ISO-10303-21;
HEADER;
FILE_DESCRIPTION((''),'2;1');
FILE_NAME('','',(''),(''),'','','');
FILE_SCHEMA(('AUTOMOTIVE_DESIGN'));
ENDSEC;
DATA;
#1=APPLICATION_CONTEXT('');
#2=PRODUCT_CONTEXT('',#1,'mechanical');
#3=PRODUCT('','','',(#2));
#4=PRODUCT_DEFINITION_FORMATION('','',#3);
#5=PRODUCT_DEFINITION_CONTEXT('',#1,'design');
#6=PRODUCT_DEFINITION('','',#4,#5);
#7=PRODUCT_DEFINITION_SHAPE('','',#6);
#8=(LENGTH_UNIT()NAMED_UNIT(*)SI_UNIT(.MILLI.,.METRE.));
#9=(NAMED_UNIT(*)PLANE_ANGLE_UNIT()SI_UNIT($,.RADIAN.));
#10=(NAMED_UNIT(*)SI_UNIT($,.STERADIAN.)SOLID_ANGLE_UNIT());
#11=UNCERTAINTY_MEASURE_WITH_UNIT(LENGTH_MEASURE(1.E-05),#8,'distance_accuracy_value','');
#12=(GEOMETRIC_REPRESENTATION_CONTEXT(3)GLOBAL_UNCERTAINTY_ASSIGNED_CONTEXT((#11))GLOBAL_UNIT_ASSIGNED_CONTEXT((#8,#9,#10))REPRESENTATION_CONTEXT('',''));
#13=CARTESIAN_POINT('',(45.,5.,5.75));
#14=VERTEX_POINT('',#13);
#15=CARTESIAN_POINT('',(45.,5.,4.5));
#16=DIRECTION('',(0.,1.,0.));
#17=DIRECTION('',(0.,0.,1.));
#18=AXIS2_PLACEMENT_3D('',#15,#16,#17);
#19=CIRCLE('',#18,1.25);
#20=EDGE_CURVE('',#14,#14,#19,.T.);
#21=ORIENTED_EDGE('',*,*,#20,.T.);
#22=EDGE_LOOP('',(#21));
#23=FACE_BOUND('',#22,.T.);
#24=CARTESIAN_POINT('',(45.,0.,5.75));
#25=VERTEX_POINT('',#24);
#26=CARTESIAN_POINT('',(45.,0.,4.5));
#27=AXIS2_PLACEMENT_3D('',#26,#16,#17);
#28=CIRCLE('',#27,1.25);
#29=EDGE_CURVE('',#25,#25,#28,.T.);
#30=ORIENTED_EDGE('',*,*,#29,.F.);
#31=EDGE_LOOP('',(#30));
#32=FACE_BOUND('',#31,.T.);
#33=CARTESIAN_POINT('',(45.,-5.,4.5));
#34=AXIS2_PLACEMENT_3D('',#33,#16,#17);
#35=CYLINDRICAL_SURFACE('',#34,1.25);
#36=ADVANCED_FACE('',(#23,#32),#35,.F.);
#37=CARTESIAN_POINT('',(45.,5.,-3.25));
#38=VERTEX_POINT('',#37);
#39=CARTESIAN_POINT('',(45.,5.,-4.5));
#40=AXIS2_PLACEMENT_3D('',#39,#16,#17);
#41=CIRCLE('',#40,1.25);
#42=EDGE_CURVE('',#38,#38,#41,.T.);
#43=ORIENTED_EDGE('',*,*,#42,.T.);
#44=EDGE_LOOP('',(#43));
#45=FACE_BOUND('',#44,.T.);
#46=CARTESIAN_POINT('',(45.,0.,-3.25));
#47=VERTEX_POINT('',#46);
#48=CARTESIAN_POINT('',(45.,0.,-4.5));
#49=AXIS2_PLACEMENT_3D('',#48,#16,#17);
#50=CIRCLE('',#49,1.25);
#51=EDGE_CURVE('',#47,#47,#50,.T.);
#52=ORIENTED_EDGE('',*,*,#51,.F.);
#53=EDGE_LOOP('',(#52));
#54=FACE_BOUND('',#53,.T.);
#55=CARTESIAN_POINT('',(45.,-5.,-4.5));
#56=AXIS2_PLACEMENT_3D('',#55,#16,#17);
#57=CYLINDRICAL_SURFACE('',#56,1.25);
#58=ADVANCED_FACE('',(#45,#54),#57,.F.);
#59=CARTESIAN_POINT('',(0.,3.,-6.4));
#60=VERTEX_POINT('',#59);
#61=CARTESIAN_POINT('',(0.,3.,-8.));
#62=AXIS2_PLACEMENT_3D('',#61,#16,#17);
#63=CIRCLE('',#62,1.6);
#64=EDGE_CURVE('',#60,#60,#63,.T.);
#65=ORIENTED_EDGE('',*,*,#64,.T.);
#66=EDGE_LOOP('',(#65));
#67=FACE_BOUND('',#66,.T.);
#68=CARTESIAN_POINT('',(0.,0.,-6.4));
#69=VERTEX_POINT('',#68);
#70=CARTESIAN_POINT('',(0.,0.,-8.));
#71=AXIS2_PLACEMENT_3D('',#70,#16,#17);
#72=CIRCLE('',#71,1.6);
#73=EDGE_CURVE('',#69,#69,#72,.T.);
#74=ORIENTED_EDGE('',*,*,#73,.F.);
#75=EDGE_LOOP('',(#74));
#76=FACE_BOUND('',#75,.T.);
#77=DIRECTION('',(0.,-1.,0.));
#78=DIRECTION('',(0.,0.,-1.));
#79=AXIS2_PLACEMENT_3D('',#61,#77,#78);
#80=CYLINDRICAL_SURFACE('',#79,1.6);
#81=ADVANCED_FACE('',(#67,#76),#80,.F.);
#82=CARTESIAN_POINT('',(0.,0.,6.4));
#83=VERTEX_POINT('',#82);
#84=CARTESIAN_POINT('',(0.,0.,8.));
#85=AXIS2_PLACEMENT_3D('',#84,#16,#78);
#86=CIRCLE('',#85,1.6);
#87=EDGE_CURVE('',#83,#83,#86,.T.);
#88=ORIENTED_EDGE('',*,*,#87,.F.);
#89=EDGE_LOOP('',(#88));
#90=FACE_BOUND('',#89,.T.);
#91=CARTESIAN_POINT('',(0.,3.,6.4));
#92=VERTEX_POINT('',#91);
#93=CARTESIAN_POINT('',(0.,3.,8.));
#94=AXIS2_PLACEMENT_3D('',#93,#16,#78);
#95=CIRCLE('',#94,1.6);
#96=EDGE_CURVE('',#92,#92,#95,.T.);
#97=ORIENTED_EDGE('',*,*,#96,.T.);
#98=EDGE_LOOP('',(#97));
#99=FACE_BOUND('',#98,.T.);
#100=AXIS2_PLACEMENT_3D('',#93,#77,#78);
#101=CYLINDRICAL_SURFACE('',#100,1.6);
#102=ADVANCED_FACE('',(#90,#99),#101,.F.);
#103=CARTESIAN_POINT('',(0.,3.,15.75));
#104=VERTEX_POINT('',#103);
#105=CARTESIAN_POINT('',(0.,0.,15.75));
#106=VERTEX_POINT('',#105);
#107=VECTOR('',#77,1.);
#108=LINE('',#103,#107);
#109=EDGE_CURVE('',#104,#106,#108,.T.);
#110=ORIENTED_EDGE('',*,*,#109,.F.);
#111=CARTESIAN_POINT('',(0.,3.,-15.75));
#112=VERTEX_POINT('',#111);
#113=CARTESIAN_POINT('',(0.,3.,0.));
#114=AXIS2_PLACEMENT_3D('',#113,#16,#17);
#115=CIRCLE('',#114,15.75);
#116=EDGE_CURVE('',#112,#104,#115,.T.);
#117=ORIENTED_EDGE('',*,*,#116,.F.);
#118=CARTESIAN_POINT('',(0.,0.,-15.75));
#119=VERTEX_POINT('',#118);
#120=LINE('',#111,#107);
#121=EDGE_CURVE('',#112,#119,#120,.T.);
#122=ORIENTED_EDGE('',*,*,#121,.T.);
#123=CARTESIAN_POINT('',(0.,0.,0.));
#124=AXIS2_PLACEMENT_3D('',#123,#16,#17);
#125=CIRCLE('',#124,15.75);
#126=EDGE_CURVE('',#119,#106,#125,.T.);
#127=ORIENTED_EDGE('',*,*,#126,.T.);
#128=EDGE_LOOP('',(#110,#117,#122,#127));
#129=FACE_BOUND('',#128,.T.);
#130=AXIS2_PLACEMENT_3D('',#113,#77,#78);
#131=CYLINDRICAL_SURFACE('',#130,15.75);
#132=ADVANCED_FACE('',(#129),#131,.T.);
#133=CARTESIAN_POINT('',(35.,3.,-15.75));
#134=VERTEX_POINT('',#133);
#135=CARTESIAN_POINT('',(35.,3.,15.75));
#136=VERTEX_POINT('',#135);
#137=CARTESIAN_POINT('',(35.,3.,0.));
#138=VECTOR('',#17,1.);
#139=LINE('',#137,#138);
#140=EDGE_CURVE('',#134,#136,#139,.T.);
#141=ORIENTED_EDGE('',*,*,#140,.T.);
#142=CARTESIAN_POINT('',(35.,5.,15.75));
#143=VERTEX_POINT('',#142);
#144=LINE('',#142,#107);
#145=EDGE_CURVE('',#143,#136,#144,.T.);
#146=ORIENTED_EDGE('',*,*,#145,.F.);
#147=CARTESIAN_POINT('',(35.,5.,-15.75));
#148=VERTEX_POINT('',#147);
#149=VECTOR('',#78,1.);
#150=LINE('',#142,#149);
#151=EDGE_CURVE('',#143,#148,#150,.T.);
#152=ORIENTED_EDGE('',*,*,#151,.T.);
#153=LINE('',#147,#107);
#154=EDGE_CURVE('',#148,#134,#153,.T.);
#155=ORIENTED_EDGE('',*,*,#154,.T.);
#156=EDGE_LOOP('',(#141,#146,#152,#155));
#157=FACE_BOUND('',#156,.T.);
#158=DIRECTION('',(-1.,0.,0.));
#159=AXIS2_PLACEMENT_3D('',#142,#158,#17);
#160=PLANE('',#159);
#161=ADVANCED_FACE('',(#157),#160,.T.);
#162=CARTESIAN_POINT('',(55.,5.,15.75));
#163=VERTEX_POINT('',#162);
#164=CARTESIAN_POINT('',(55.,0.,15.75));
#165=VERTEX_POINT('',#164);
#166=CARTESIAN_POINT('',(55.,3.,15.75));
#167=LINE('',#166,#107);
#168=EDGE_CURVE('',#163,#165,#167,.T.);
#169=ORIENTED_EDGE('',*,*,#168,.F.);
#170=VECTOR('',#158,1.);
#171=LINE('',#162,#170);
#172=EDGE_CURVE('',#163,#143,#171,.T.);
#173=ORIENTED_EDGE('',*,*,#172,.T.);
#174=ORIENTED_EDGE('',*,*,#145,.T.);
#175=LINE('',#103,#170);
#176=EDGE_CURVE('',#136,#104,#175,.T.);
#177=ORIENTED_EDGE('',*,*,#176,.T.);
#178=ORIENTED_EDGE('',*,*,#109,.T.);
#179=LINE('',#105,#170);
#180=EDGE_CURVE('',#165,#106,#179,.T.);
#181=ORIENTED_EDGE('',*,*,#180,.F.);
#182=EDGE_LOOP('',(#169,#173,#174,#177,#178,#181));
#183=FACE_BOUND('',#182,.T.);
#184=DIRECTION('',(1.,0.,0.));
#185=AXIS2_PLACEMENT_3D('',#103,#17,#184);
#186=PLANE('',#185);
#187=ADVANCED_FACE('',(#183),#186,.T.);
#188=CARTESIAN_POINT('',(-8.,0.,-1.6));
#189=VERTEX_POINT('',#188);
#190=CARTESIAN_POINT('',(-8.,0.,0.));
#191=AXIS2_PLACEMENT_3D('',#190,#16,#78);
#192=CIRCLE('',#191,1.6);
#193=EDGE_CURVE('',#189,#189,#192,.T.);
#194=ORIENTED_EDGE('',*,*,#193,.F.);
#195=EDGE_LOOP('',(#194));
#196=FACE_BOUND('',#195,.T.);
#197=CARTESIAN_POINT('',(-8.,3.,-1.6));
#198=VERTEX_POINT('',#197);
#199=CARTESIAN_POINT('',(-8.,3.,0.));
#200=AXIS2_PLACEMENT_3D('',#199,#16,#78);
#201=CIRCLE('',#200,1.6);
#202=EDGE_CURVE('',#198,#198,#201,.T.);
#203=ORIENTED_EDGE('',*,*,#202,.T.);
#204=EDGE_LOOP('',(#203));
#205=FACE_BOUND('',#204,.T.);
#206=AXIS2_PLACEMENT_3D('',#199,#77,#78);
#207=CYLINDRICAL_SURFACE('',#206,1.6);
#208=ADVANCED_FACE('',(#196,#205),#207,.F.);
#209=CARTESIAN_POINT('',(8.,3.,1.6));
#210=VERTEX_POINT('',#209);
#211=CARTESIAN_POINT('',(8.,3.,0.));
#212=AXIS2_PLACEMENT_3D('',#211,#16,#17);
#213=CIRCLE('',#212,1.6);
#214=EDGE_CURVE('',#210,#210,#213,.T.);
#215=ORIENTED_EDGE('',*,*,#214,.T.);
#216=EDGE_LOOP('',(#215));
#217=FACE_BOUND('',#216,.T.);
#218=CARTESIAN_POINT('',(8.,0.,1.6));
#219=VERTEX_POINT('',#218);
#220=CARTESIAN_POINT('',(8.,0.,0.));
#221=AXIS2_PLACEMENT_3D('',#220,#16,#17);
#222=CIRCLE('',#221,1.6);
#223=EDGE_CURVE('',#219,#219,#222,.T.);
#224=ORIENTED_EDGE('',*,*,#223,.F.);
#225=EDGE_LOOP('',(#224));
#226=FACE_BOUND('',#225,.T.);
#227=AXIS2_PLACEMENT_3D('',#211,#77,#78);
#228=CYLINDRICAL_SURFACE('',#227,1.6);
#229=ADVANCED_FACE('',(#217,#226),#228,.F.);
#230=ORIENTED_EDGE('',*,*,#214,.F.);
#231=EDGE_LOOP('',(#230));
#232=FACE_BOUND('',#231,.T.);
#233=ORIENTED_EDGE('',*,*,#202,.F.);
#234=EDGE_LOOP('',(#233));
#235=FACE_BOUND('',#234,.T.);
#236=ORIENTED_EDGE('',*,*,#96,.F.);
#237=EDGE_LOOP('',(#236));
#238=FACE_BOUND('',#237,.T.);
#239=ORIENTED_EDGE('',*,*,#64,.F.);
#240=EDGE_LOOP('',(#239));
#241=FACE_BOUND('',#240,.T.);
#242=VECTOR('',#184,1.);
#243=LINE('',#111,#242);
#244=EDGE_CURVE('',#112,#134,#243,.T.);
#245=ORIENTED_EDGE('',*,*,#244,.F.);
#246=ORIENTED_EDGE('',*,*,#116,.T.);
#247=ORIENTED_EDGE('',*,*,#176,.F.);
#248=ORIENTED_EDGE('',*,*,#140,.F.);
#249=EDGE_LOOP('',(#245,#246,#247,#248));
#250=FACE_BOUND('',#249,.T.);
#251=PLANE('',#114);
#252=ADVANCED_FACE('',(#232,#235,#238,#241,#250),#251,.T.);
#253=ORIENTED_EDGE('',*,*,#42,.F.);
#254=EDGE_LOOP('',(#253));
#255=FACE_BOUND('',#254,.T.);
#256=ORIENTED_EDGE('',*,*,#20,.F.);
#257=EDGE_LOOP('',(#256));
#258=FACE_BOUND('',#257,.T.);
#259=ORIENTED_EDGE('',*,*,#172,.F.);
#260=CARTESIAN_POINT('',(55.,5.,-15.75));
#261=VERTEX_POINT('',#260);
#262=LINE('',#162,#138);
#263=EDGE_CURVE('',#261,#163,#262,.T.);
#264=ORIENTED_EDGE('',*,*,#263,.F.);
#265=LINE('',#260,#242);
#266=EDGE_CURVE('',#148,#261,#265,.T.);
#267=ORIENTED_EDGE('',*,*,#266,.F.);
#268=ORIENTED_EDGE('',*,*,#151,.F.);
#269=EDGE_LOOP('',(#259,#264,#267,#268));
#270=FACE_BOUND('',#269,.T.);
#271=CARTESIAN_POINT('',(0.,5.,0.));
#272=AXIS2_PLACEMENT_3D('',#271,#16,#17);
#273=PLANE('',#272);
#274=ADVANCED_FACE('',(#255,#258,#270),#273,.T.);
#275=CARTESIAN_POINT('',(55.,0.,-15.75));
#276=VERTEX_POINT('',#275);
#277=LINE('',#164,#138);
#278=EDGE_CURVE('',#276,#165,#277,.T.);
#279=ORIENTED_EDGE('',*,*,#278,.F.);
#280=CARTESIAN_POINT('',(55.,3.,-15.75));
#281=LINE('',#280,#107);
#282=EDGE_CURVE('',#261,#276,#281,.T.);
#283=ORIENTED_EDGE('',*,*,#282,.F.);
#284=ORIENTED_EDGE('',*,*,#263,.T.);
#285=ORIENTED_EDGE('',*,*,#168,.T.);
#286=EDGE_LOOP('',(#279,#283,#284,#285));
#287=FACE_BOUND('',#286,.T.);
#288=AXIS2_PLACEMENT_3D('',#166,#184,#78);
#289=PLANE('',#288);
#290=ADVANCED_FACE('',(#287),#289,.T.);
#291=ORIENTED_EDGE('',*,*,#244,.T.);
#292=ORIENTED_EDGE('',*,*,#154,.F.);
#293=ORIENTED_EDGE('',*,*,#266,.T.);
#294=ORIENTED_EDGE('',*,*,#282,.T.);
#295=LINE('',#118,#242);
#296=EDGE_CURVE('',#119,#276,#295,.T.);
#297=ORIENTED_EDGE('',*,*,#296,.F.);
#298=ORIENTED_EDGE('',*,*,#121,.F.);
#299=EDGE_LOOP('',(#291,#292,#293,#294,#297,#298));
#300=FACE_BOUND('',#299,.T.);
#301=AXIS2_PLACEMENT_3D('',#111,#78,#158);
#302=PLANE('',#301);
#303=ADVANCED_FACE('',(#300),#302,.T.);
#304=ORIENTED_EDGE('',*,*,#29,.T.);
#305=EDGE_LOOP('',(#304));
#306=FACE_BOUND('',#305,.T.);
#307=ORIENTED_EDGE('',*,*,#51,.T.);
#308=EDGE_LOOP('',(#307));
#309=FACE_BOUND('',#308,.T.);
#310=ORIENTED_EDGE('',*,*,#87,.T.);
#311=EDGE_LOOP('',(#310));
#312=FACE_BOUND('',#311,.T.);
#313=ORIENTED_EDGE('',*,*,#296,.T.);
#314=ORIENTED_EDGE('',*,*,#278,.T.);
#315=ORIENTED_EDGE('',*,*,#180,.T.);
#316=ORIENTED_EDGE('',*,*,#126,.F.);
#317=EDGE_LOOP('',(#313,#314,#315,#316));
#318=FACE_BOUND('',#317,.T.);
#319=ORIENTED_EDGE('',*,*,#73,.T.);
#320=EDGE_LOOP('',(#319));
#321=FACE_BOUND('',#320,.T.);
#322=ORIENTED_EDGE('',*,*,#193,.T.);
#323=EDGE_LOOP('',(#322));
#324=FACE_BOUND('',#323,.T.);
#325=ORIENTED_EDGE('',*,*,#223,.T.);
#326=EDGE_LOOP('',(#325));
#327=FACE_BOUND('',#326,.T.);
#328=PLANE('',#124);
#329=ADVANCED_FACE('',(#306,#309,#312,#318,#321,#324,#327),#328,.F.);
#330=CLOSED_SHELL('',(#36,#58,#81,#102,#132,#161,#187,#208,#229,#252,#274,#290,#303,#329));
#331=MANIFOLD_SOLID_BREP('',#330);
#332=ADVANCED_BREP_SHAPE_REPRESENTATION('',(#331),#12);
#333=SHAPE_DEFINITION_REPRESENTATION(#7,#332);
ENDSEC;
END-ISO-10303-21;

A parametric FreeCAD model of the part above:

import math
import FreeCAD as App
import Part
import Sketcher


def add_polygon(sketch, points):
    """Adds a closed chain of lines whose ends are joined by coincident constraints."""
    first, n = sketch.GeometryCount, len(points)
    for a, b in zip(points, points[1:] + points[:1]):
        sketch.addGeometry(Part.LineSegment(App.Vector(*a, 0), App.Vector(*b, 0)), False)
    for i in range(n):
        sketch.addConstraint(Sketcher.Constraint("Coincident", first + i, 2, first + (i + 1) % n, 1))

doc = App.newDocument("Part")
body = doc.addObject("PartDesign::Body", "Body")

# Sketch on XZ plane
sketch1 = body.newObject("Sketcher::SketchObject", "Sketch")
sketch1.AttachmentSupport = (doc.getObject("XZ_Plane"), [""])
sketch1.MapMode = "FlatFace"
sketch1.addGeometry(Part.Circle(App.Vector(0, 0, 0), App.Vector(0, 0, 1), 15.8), False)
sketch1.addGeometry(Part.Circle(App.Vector(0, 8, 0), App.Vector(0, 0, 1), 1.6), False)
sketch1.addGeometry(Part.Circle(App.Vector(-8, 0, 0), App.Vector(0, 0, 1), 1.6), False)
sketch1.addGeometry(Part.Circle(App.Vector(8, 0, 0), App.Vector(0, 0, 1), 1.6), False)
sketch1.addGeometry(Part.Circle(App.Vector(0, -8, 0), App.Vector(0, 0, 1), 1.6), False)
sketch1.addConstraint(Sketcher.Constraint("Coincident", 0, 3, -1, 1))
sketch1.addConstraint(Sketcher.Constraint("Equal", 1, 2))
sketch1.addConstraint(Sketcher.Constraint("Equal", 2, 3))
sketch1.addConstraint(Sketcher.Constraint("Equal", 3, 4))
sketch1.addConstraint(Sketcher.Constraint("Symmetric", 2, 3, 3, 3, -1, 1))
sketch1.addConstraint(Sketcher.Constraint("Symmetric", 1, 3, 4, 3, -1, 1))
sketch1.addConstraint(Sketcher.Constraint("PointOnObject", 1, 3, -2))
sketch1.addConstraint(Sketcher.Constraint("PointOnObject", 2, 3, -1))
sketch1.addConstraint(Sketcher.Constraint("Diameter", 0, 31.5))
sketch1.addConstraint(Sketcher.Constraint("Diameter", 1, 3.2))
sketch1.addConstraint(Sketcher.Constraint("DistanceY", -1, 1, 1, 3, 8.0))
sketch1.addConstraint(Sketcher.Constraint("DistanceX", 2, 3, -1, 1, 8.0))
pad1 = body.newObject("PartDesign::Pad", "Pad")
pad1.Profile = sketch1
pad1.Length = 3
pad1.Reversed = True

# Sketch on XZ plane
sketch2 = body.newObject("Sketcher::SketchObject", "Sketch001")
sketch2.AttachmentSupport = (doc.getObject("XZ_Plane"), [""])
sketch2.MapMode = "FlatFace"
sketch2.addGeometry(Part.LineSegment(App.Vector(55, 16, 0), App.Vector(0, 16, 0)), False)
sketch2.addGeometry(Part.ArcOfCircle(Part.Circle(App.Vector(0, 0, 0), App.Vector(0, 0, 1), 16), math.radians(-90), math.radians(90)), False)
sketch2.addGeometry(Part.LineSegment(App.Vector(0, -16, 0), App.Vector(55, -16, 0)), False)
sketch2.addGeometry(Part.LineSegment(App.Vector(55, -16, 0), App.Vector(55, 16, 0)), False)
sketch2.addConstraint(Sketcher.Constraint("Tangent", 0, 2, 1, 2))
sketch2.addConstraint(Sketcher.Constraint("Tangent", 1, 1, 2, 1))
sketch2.addConstraint(Sketcher.Constraint("Coincident", 2, 2, 3, 1))
sketch2.addConstraint(Sketcher.Constraint("Coincident", 3, 2, 0, 1))
sketch2.addConstraint(Sketcher.Constraint("Horizontal", 0))
sketch2.addConstraint(Sketcher.Constraint("Horizontal", 2))
sketch2.addConstraint(Sketcher.Constraint("Vertical", 3))
sketch2.addConstraint(Sketcher.Constraint("Coincident", 1, 3, -1, 1))
sketch2.addConstraint(Sketcher.Constraint("DistanceX", 0, 2, 0, 1, 55.0))
sketch2.addConstraint(Sketcher.Constraint("Radius", 1, 15.75))
pad2 = body.newObject("PartDesign::Pad", "Pad001")
pad2.Profile = sketch2
pad2.Length = 3
pad2.Reversed = True

# Sketch on XZ plane
sketch3 = body.newObject("Sketcher::SketchObject", "Sketch002")
sketch3.AttachmentSupport = (doc.getObject("XZ_Plane"), [""])
sketch3.MapMode = "FlatFace"
add_polygon(sketch3, [(35, 16), (35, -16), (55, -16), (55, 16)])  # lines 0-3
sketch3.addConstraint(Sketcher.Constraint("Vertical", 0))
sketch3.addConstraint(Sketcher.Constraint("Horizontal", 1))
sketch3.addConstraint(Sketcher.Constraint("Vertical", 2))
sketch3.addConstraint(Sketcher.Constraint("Horizontal", 3))
sketch3.addConstraint(Sketcher.Constraint("DistanceX", 1, 1, 1, 2, 20.0))
sketch3.addConstraint(Sketcher.Constraint("DistanceY", 0, 2, 0, 1, 31.5))
sketch3.addConstraint(Sketcher.Constraint("DistanceX", -1, 1, 0, 2, 35.0))
sketch3.addConstraint(Sketcher.Constraint("DistanceY", 0, 2, -1, 1, 15.75))
pad3 = body.newObject("PartDesign::Pad", "Pad002")
pad3.Profile = sketch3
pad3.Length = 5
pad3.Reversed = True

# Sketch on XZ plane
sketch4 = body.newObject("Sketcher::SketchObject", "Sketch003")
sketch4.AttachmentSupport = (doc.getObject("XZ_Plane"), [""])
sketch4.MapMode = "FlatFace"
sketch4.AttachmentOffset = App.Placement(App.Vector(0, 0, -5), App.Rotation())
sketch4.addGeometry(Part.Circle(App.Vector(45, -4.5, 0), App.Vector(0, 0, 1), 1.2), False)
sketch4.addGeometry(Part.Circle(App.Vector(45, 4.5, 0), App.Vector(0, 0, 1), 1.2), False)
sketch4.addConstraint(Sketcher.Constraint("Equal", 0, 1))
sketch4.addConstraint(Sketcher.Constraint("Symmetric", 0, 3, 1, 3, -1))
sketch4.addConstraint(Sketcher.Constraint("Diameter", 0, 2.5))
sketch4.addConstraint(Sketcher.Constraint("DistanceX", -1, 1, 0, 3, 45.0))
sketch4.addConstraint(Sketcher.Constraint("DistanceY", 0, 3, 1, 3, 9.0))
pocket1 = body.newObject("PartDesign::Pocket", "Pocket")
pocket1.Profile = sketch4
pocket1.Length = 10
pocket1.Reversed = True

doc.recompute()
